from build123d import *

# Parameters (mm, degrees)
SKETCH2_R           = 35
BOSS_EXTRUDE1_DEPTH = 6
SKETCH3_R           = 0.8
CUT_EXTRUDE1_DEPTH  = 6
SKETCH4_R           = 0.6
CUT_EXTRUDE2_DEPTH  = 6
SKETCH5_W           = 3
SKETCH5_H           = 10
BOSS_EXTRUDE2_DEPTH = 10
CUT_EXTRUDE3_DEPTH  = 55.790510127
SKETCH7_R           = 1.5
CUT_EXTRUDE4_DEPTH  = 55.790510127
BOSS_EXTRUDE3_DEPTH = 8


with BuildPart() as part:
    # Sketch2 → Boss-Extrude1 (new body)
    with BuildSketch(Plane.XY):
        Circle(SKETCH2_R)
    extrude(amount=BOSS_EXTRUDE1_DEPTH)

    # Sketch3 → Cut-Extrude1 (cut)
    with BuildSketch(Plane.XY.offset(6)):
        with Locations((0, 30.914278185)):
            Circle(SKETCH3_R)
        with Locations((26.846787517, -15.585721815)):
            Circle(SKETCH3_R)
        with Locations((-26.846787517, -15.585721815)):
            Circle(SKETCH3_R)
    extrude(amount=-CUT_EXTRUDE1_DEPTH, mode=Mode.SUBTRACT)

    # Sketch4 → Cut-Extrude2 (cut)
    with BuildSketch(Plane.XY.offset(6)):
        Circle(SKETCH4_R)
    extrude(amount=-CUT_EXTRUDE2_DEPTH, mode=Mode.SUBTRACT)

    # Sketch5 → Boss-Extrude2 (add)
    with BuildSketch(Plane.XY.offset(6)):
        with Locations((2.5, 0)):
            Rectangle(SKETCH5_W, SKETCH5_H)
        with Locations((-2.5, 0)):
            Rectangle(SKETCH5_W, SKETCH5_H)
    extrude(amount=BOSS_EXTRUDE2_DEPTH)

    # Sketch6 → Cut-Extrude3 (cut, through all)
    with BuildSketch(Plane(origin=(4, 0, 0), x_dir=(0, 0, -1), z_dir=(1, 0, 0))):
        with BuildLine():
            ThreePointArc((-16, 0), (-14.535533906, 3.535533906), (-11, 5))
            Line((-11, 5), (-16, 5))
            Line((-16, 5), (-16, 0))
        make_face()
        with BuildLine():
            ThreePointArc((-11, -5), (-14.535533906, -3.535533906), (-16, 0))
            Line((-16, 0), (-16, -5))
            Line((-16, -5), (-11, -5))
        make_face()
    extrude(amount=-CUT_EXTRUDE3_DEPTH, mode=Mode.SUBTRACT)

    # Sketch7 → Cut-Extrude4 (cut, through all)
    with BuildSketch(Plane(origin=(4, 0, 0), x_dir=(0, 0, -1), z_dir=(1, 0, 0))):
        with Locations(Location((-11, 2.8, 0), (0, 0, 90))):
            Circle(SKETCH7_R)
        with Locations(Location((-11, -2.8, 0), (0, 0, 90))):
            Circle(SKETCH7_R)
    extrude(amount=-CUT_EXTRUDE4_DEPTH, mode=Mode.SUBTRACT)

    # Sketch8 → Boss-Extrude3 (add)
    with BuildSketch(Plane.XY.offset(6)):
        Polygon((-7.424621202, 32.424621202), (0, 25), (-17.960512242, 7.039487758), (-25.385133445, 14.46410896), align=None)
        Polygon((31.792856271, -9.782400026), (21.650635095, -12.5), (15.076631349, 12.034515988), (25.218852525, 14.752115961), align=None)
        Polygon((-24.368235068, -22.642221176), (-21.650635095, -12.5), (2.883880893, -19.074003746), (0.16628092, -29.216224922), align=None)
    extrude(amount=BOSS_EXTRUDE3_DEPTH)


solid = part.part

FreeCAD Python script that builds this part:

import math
import FreeCAD as App
import Part
import Sketcher

V = App.Vector
Q = App.Units.Quantity


def add_polygon(sketch, points):
    """Adds a closed chain of lines whose ends are joined by coincident constraints."""
    first, n = sketch.GeometryCount, len(points)
    for a, b in zip(points, points[1:] + points[:1]):
        sketch.addGeometry(Part.LineSegment(App.Vector(*a, 0), App.Vector(*b, 0)), False)
    for i in range(n):
        sketch.addConstraint(Sketcher.Constraint("Coincident", first + i, 2, first + (i + 1) % n, 1))

doc = App.newDocument("Part")
body = doc.addObject("PartDesign::Body", "Body")

sketch1 = doc.addObject("Sketcher::SketchObject", "Sketch")
body.addObject(sketch1)
sketch1.AttachmentSupport = (doc.XY_Plane, [""])
sketch1.MapMode = "FlatFace"
sketch1.addGeometry(Part.Circle(V(0, 0, 0), V(0, 0, 1), 35), False)
sketch1.addConstraint([
    Sketcher.Constraint("Coincident", 0, 3, -1, 1),
    Sketcher.Constraint("Diameter", 0, Q("70 mm")),
])
pad1 = doc.addObject("PartDesign::Pad", "Pad")
body.addObject(pad1)
pad1.Profile = sketch1
pad1.Length = 6

sketch2 = doc.addObject("Sketcher::SketchObject", "Sketch001")
body.addObject(sketch2)
sketch2.AttachmentSupport = (doc.XY_Plane, [""])
sketch2.MapMode = "FlatFace"
sketch2.AttachmentOffset = App.Placement(V(0, 0, 6), App.Rotation())
sketch2.addGeometry([
    Part.Circle(V(0, 30.9, 0), V(0, 0, 1), 0.8),
    Part.Circle(V(26.8, -15.6, 0), V(0, 0, 1), 0.8),
    Part.Circle(V(-26.8, -15.6, 0), V(0, 0, 1), 0.8),
], False)
sketch2.addConstraint([
    Sketcher.Constraint("Equal", 0, 1),
    Sketcher.Constraint("Equal", 1, 2),
    Sketcher.Constraint("Symmetric", 1, 3, 2, 3, -2),
    Sketcher.Constraint("PointOnObject", 0, 3, -2),
    Sketcher.Constraint("Diameter", 0, Q("1.6 mm")),
    Sketcher.Constraint("DistanceY", 1, 3, 0, 3, Q("46.5 mm")),
    Sketcher.Constraint("DistanceY", -1, 1, 0, 3, Q("30.914278 mm")),
    Sketcher.Constraint("DistanceX", -1, 1, 1, 3, Q("26.846788 mm")),
])
pocket1 = doc.addObject("PartDesign::Pocket", "Pocket")
body.addObject(pocket1)
pocket1.Profile = sketch2
pocket1.Length = 6

sketch3 = doc.addObject("Sketcher::SketchObject", "Sketch002")
body.addObject(sketch3)
sketch3.AttachmentSupport = (doc.XY_Plane, [""])
sketch3.MapMode = "FlatFace"
sketch3.AttachmentOffset = App.Placement(V(0, 0, 6), App.Rotation())
sketch3.addGeometry(Part.Circle(V(0, 0, 0), V(0, 0, 1), 0.6), False)
sketch3.addConstraint([
    Sketcher.Constraint("Coincident", 0, 3, -1, 1),
    Sketcher.Constraint("Diameter", 0, Q("1.2 mm")),
])
pocket2 = doc.addObject("PartDesign::Pocket", "Pocket001")
body.addObject(pocket2)
pocket2.Profile = sketch3
pocket2.Length = 6

sketch4 = doc.addObject("Sketcher::SketchObject", "Sketch003")
body.addObject(sketch4)
sketch4.AttachmentSupport = (doc.XY_Plane, [""])
sketch4.MapMode = "FlatFace"
sketch4.AttachmentOffset = App.Placement(V(0, 0, 6), App.Rotation())
add_polygon(sketch4, [(1, 5), (1, -5), (4, -5), (4, 5)])
add_polygon(sketch4, [(-4, 5), (-4, -5), (-1, -5), (-1, 5)])
sketch4.addConstraint([
    Sketcher.Constraint("Vertical", 0),
    Sketcher.Constraint("Horizontal", 1),
    Sketcher.Constraint("Vertical", 2),
    Sketcher.Constraint("Horizontal", 3),
    Sketcher.Constraint("Vertical", 4),
    Sketcher.Constraint("Horizontal", 5),
    Sketcher.Constraint("Vertical", 6),
    Sketcher.Constraint("Horizontal", 7),
    Sketcher.Constraint("Symmetric", 2, 2, 4, 2, -1, 1),
    Sketcher.Constraint("Symmetric", 0, 2, 6, 2, -1, 1),
    Sketcher.Constraint("Horizontal", 1, 2, 4, 2),
    Sketcher.Constraint("DistanceX", 1, 1, 1, 2, Q("3 mm")),
    Sketcher.Constraint("DistanceY", 0, 2, 0, 1, Q("10 mm")),
    Sketcher.Constraint("DistanceX", -1, 1, 0, 2, Q("1 mm")),
])
pad2 = doc.addObject("PartDesign::Pad", "Pad001")
body.addObject(pad2)
pad2.Profile = sketch4
pad2.Length = 10

sketch5 = doc.addObject("Sketcher::SketchObject", "Sketch004")
body.addObject(sketch5)
sketch5.AttachmentSupport = (doc.YZ_Plane, [""])
sketch5.MapMode = "FlatFace"
sketch5.AttachmentOffset = App.Placement(V(0, 0, 4), App.Rotation())
sketch5.addGeometry([
    Part.ArcOfCircle(Part.Circle(V(0, 11, 0), V(0, 0, 1), 5), math.radians(0), math.radians(90)),
    Part.LineSegment(V(5, 11, 0), V(5, 16, 0)),
    Part.LineSegment(V(5, 16, 0), V(0, 16, 0)),
    Part.ArcOfCircle(Part.Circle(V(0, 11, 0), V(0, 0, 1), 5), math.radians(90), math.radians(180)),
    Part.LineSegment(V(0, 16, 0), V(-5, 16, 0)),
    Part.LineSegment(V(-5, 16, 0), V(-5, 11, 0)),
], False)
sketch5.addConstraint([
    Sketcher.Constraint("Tangent", 0, 1, 1, 1),
    Sketcher.Constraint("Coincident", 1, 2, 2, 1),
    Sketcher.Constraint("Tangent", 2, 2, 0, 2),
    Sketcher.Constraint("Tangent", 3, 1, 4, 1),
    Sketcher.Constraint("Coincident", 4, 2, 5, 1),
    Sketcher.Constraint("Tangent", 5, 2, 3, 2),
    Sketcher.Constraint("Vertical", 1),
    Sketcher.Constraint("Horizontal", 2),
    Sketcher.Constraint("Horizontal", 4),
    Sketcher.Constraint("Vertical", 5),
    Sketcher.Constraint("Coincident", 3, 3, 0, 3),
    Sketcher.Constraint("Equal", 0, 3),
    Sketcher.Constraint("PointOnObject", 0, 3, -2),
    Sketcher.Constraint("Radius", 0, Q("5 mm")),
    Sketcher.Constraint("DistanceY", -1, 1, 0, 3, Q("11 mm")),
])
pocket3 = doc.addObject("PartDesign::Pocket", "Pocket002")
body.addObject(pocket3)
pocket3.Profile = sketch5
pocket3.Type = "ThroughAll"

sketch6 = doc.addObject("Sketcher::SketchObject", "Sketch005")
body.addObject(sketch6)
sketch6.AttachmentSupport = (doc.YZ_Plane, [""])
sketch6.MapMode = "FlatFace"
sketch6.AttachmentOffset = App.Placement(V(0, 0, 4), App.Rotation())
sketch6.addGeometry([
    Part.Circle(V(2.8, 11, 0), V(0, 0, 1), 1.5),
    Part.Circle(V(-2.8, 11, 0), V(0, 0, 1), 1.5),
], False)
sketch6.addConstraint([
    Sketcher.Constraint("Equal", 0, 1),
    Sketcher.Constraint("Symmetric", 0, 3, 1, 3, -2),
    Sketcher.Constraint("Diameter", 0, Q("3 mm")),
    Sketcher.Constraint("DistanceY", -1, 1, 0, 3, Q("11 mm")),
    Sketcher.Constraint("DistanceX", -1, 1, 0, 3, Q("2.8 mm")),
])
pocket4 = doc.addObject("PartDesign::Pocket", "Pocket003")
body.addObject(pocket4)
pocket4.Profile = sketch6
pocket4.Type = "ThroughAll"

sketch7 = doc.addObject("Sketcher::SketchObject", "Sketch006")
body.addObject(sketch7)
sketch7.AttachmentSupport = (doc.XY_Plane, [""])
sketch7.MapMode = "FlatFace"
sketch7.AttachmentOffset = App.Placement(V(0, 0, 6), App.Rotation())
add_polygon(sketch7, [(0, 25), (-7, 32), (-25, 14), (-18, 7)])
add_polygon(sketch7, [(22, -12), (32, -10), (25, 15), (15, 12)])
add_polygon(sketch7, [(-22, -12), (-24, -23), (0, -29), (3, -19)])
sketch7.addConstraint([
    Sketcher.Constraint("Symmetric", 7, 2, 11, 2, -2),
    Sketcher.Constraint("PointOnObject", 3, 2, -2),
    Sketcher.Constraint("Perpendicular", 0, 1),
    Sketcher.Constraint("Perpendicular", 1, 2),
    Sketcher.Constraint("Perpendicular", 2, 3),
    Sketcher.Constraint("Perpendicular", 4, 5),
    Sketcher.Constraint("Perpendicular", 5, 6),
    Sketcher.Constraint("Perpendicular", 6, 7),
    Sketcher.Constraint("Perpendicular", 8, 9),
    Sketcher.Constraint("Perpendicular", 9, 10),
    Sketcher.Constraint("Perpendicular", 10, 11),
    Sketcher.Constraint("Equal", 2, 4),
    Sketcher.Constraint("Equal", 3, 5),
    Sketcher.Constraint("Equal", 6, 8),
    Sketcher.Constraint("Equal", 7, 9),
    Sketcher.Constraint("Angle", 0, Q("135 deg")),
    Sketcher.Constraint("Angle", 4, Q("15 deg")),
    Sketcher.Constraint("Angle", 8, Q("-105 deg")),
    Sketcher.Constraint("DistanceY", -1, 1, 3, 2, Q("25 mm")),
    Sketcher.Constraint("Distance", 0, Q("10.5 mm")),
    Sketcher.Constraint("Distance", 1, Q("25.4 mm")),
    Sketcher.Constraint("DistanceY", 7, 2, -1, 1, Q("12.5 mm")),
    Sketcher.Constraint("DistanceX", 1, 2, 8, 2, Q("1.016898 mm")),
])
pad3 = doc.addObject("PartDesign::Pad", "Pad002")
body.addObject(pad3)
pad3.Profile = sketch7
pad3.Length = 8

doc.recompute()
